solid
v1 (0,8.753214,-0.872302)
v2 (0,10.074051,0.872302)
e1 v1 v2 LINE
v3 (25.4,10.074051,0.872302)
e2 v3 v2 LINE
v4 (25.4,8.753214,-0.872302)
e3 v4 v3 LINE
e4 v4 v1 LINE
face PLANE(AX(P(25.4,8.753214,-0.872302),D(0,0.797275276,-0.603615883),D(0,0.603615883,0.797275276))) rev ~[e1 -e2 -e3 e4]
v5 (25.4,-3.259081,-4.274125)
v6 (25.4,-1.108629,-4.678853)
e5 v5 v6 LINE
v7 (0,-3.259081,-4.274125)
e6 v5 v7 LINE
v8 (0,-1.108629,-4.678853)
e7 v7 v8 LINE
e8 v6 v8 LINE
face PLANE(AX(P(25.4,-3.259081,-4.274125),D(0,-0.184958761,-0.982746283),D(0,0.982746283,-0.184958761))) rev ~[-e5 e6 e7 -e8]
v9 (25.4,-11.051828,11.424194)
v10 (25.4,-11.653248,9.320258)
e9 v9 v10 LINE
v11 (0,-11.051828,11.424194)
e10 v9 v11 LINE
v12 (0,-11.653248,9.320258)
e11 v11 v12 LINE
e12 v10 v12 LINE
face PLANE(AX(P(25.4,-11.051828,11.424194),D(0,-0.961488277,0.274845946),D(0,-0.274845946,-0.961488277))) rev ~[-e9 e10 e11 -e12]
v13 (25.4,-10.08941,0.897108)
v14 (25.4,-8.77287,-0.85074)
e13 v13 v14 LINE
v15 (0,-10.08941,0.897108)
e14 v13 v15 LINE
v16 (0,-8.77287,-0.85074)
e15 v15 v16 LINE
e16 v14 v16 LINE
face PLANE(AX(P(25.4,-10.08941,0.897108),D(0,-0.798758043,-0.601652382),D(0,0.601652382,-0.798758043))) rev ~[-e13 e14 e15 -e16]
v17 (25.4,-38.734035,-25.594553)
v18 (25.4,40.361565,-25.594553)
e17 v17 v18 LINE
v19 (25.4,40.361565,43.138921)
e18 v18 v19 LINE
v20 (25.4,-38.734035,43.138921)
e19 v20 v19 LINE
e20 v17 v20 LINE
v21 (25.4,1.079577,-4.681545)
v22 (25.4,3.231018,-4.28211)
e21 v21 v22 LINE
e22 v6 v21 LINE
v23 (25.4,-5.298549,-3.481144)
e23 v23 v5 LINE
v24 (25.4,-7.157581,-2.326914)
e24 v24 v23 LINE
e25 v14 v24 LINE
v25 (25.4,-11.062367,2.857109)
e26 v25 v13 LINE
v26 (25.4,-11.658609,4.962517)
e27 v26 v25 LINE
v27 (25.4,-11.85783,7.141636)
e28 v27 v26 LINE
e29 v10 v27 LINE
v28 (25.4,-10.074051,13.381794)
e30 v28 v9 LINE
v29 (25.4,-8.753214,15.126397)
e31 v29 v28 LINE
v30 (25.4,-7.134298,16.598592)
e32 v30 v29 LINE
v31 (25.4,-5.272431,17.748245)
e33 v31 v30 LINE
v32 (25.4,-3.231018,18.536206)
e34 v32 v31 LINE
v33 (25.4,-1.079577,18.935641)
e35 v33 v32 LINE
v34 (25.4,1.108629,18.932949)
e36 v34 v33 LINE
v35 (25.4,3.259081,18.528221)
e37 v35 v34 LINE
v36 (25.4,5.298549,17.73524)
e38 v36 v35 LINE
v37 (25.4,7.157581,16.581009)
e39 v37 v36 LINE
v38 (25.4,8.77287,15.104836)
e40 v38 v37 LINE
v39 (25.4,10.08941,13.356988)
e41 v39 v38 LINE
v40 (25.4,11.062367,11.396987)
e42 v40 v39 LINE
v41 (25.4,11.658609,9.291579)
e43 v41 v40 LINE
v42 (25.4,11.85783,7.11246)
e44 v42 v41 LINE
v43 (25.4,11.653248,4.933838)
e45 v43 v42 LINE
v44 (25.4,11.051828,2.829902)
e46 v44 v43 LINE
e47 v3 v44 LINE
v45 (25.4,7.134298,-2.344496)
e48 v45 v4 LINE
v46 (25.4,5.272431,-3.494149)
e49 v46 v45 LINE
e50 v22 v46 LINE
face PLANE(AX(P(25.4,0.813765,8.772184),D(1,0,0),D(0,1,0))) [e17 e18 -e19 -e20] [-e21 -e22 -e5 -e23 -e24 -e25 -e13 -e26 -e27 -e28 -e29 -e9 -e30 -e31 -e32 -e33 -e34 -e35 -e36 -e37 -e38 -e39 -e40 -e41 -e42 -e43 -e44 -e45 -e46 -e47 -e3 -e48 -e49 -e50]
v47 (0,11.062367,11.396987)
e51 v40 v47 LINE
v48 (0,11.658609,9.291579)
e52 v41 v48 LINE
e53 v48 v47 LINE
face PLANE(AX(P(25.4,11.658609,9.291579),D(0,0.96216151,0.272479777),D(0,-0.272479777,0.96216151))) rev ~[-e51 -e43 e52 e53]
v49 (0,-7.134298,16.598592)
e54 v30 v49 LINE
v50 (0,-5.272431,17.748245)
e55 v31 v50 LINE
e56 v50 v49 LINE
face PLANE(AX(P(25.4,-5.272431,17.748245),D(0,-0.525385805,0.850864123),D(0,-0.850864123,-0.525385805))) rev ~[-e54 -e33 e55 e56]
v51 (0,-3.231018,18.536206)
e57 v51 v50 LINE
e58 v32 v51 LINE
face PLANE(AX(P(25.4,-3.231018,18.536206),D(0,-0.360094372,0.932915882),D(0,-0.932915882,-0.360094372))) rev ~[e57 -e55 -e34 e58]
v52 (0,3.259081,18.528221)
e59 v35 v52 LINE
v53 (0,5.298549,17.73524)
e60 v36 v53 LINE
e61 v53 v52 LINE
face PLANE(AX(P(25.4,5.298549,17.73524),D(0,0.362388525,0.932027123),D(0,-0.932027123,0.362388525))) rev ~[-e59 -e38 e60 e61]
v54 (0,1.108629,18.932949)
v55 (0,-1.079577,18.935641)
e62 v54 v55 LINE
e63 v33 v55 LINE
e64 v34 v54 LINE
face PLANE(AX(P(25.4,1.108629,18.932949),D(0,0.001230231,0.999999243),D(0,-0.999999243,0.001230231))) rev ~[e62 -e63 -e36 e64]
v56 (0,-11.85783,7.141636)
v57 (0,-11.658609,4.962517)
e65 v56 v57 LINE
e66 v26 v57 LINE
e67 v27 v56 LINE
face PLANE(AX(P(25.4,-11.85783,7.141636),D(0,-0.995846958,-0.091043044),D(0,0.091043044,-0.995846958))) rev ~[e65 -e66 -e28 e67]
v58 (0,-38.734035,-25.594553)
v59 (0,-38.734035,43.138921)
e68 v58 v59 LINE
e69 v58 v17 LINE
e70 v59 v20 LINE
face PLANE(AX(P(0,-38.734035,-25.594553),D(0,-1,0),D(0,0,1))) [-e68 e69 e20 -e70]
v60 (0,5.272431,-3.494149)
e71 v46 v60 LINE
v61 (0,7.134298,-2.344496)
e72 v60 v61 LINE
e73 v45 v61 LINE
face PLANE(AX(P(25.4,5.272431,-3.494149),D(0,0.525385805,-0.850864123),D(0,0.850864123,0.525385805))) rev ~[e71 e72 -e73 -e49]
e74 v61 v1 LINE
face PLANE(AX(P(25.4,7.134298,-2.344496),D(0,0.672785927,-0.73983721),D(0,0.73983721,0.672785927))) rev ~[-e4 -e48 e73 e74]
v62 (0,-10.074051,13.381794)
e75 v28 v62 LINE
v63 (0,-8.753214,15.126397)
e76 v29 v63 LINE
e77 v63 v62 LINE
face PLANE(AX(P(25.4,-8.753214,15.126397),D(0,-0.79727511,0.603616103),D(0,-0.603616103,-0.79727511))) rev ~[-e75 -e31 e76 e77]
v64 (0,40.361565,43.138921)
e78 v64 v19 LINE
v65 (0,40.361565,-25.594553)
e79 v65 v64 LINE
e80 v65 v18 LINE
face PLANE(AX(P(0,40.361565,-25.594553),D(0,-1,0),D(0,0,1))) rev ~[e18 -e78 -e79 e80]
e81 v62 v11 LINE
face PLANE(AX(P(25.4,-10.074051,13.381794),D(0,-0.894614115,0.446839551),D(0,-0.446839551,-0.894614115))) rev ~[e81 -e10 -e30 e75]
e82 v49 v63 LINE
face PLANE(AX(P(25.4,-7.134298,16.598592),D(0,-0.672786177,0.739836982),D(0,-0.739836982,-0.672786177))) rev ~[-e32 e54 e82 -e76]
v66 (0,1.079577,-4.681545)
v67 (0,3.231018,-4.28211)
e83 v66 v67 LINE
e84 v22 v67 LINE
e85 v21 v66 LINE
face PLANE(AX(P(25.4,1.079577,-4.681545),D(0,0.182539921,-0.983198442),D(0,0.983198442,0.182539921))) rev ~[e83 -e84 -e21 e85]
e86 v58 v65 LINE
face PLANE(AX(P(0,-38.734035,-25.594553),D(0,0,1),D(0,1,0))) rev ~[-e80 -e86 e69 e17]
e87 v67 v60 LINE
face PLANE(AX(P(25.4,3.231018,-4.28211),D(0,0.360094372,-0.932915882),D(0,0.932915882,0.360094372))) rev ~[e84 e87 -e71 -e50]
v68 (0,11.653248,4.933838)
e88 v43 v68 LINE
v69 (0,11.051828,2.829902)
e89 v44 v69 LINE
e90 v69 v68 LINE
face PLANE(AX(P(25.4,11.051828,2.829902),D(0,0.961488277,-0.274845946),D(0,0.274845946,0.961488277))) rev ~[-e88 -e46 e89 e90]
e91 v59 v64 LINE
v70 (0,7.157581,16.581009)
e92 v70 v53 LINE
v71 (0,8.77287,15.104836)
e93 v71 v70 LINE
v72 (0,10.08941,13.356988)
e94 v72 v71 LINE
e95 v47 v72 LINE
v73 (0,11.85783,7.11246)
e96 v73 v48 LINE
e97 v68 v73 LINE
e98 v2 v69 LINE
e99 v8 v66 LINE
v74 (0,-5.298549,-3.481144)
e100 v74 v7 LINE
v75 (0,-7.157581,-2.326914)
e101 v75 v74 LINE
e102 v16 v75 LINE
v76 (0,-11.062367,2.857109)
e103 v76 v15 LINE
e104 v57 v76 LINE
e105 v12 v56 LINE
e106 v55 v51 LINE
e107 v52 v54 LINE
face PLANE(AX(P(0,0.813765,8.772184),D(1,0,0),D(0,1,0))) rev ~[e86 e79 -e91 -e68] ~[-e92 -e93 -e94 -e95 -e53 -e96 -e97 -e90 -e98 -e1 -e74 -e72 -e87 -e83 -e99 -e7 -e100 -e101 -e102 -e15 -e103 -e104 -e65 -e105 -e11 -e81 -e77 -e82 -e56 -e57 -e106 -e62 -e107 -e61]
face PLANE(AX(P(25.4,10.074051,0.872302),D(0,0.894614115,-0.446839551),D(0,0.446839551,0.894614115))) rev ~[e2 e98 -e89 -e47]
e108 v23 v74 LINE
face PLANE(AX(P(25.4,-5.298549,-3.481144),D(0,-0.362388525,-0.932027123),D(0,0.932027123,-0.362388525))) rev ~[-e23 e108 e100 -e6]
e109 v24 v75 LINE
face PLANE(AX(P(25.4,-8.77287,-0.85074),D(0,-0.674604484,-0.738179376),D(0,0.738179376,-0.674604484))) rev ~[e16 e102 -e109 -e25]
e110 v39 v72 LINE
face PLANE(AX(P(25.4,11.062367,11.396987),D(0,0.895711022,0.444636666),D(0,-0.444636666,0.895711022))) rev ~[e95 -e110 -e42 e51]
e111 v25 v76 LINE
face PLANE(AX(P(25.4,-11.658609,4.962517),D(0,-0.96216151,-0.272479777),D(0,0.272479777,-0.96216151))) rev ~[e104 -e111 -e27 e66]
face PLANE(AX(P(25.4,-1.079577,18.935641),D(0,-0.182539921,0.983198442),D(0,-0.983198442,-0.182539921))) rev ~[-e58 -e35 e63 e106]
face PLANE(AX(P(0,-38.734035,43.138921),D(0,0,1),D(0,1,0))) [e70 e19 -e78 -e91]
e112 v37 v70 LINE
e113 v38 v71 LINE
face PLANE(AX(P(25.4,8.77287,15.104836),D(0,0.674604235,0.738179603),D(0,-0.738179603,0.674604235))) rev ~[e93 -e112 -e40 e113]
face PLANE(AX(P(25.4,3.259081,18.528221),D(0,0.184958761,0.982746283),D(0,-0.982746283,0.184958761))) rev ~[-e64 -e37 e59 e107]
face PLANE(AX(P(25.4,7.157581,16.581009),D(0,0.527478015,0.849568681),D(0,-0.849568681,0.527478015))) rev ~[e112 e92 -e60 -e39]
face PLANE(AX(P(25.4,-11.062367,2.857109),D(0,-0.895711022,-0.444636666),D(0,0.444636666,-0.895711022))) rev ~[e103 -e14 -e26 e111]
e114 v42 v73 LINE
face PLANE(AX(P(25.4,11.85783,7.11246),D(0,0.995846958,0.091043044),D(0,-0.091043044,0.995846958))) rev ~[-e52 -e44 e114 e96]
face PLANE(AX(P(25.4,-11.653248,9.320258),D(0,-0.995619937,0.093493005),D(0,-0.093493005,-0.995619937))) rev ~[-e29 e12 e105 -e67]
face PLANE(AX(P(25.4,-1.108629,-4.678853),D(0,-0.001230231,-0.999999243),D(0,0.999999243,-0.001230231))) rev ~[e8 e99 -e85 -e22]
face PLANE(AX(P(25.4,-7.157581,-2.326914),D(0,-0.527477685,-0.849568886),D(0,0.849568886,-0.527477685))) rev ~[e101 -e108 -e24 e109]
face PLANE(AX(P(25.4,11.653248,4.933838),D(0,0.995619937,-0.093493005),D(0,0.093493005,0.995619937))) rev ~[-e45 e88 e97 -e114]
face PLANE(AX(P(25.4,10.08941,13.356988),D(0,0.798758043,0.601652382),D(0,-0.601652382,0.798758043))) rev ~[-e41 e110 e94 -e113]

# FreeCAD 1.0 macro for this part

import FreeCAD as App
import Part
import Sketcher
Q = App.Units.Quantity


def add_polygon(sketch, points):
    """Adds a closed chain of lines whose ends are joined by coincident constraints."""
    first, n = sketch.GeometryCount, len(points)
    for a, b in zip(points, points[1:] + points[:1]):
        sketch.addGeometry(Part.LineSegment(App.Vector(*a, 0), App.Vector(*b, 0)), False)
    for i in range(n):
        sketch.addConstraint(Sketcher.Constraint("Coincident", first + i, 2, first + (i + 1) % n, 1))

doc = App.newDocument("Part")
body = doc.addObject("PartDesign::Body", "Body")

sketch1 = body.newObject("Sketcher::SketchObject", "Sketch")
sketch1.AttachmentSupport = (doc.getObject("YZ_Plane"), [""])
sketch1.MapMode = "FlatFace"
add_polygon(sketch1, [(-38.734035, 43.138921), (-38.734035, -25.594553), (40.361565, -25.594553), (40.361565, 43.138921)])
sketch1.addConstraint([
    Sketcher.Constraint("Vertical", 0),
    Sketcher.Constraint("Horizontal", 1),
    Sketcher.Constraint("Vertical", 2),
    Sketcher.Constraint("Horizontal", 3),
    Sketcher.Constraint("DistanceX", 1, 1, 1, 2, Q("3.114 in")),
    Sketcher.Constraint("DistanceY", 0, 2, 0, 1, 68.733474),
    Sketcher.Constraint("DistanceY", -1, 1, 2, 2, 43.138921),
    Sketcher.Constraint("DistanceX", 0, 2, -1, 1, 38.734035),
])
pad1 = body.newObject("PartDesign::Pad", "Pad")
pad1.Profile = sketch1
pad1.Length = Q("1 in")

sketch2 = body.newObject("Sketcher::SketchObject", "Sketch001")
sketch2.AttachmentSupport = (doc.getObject("YZ_Plane"), [""])
sketch2.MapMode = "FlatFace"
sketch2.AttachmentOffset = App.Placement(App.Vector(0, 0, 1 * 25.4), App.Rotation())
add_polygon(sketch2, [(8.753214, -0.872302), (10.074051, 0.872302), (11.051828, 2.829902), (11.653248, 4.933838), (11.85783, 7.11246), (11.658609, 9.291579), (11.062367, 11.396987), (10.08941, 13.356988), (8.77287, 15.104836), (7.157581, 16.581009), (5.298549, 17.73524), (3.259081, 18.528221), (1.108629, 18.932949), (-1.079577, 18.935641), (-3.231018, 18.536206), (-5.272431, 17.748245), (-7.134298, 16.598592), (-8.753214, 15.126397), (-10.074051, 13.381794), (-11.051828, 11.424194), (-11.653248, 9.320258), (-11.85783, 7.141636), (-11.658609, 4.962517), (-11.062367, 2.857109), (-10.08941, 0.897108), (-8.77287, -0.85074), (-7.157581, -2.326914), (-5.298549, -3.481144), (-3.259081, -4.274125), (-1.108629, -4.678853), (1.079577, -4.681545), (3.231018, -4.28211), (5.272431, -3.494149), (7.134298, -2.344496)])
sketch2.addConstraint([
    Sketcher.Constraint("DistanceX", 13, 2, 8, 2, Q("0.409 in")),
    Sketcher.Constraint("DistanceX", 15, 2, -1, 1, 7.134298),
    Sketcher.Constraint("DistanceX", -1, 1, 32, 2, 7.134298),
    Sketcher.Constraint("DistanceY", 0, 2, 1, 2, 1.9576),
    Sketcher.Constraint("DistanceX", 1, 2, 3, 2, 0.806002),
    Sketcher.Constraint("DistanceY", 5, 2, 6, 2, 1.960001),
    Sketcher.Constraint("DistanceX", 6, 2, 4, 2, 1.569199),
    Sketcher.Constraint("DistanceY", 2, 2, 7, 2, 10.170998),
    Sketcher.Constraint("DistanceX", 10, 2, 8, 2, 3.8985),
    Sketcher.Constraint("DistanceY", 9, 2, 12, 2, 1.200401),
    Sketcher.Constraint("DistanceY", 17, 2, 15, 2, 3.216798),
    Sketcher.Constraint("DistanceY", 18, 2, 17, 2, 1.9576),
    Sketcher.Constraint("DistanceX", 20, 2, 18, 2, 0.806002),
    Sketcher.Constraint("DistanceY", 23, 2, 22, 2, 1.960001),
    Sketcher.Constraint("DistanceX", 21, 2, 23, 2, 1.569199),
    Sketcher.Constraint("DistanceY", 24, 2, 19, 2, 10.170998),
    Sketcher.Constraint("DistanceX", 25, 2, 27, 2, 3.8985),
    Sketcher.Constraint("DistanceY", 29, 2, 26, 2, 1.200401),
    Sketcher.Constraint("DistanceX", 27, 2, 30, 2, 6.490099),
    Sketcher.Constraint("DistanceX", -1, 1, 0, 2, 10.074051),
    Sketcher.Constraint("DistanceX", -1, 1, 3, 2, 11.85783),
    Sketcher.Constraint("DistanceY", -1, 1, 3, 2, 7.11246),
    Sketcher.Constraint("DistanceX", -1, 1, 4, 2, 11.658609),
    Sketcher.Constraint("DistanceY", -1, 1, 4, 2, 9.291579),
    Sketcher.Constraint("DistanceX", -1, 1, 7, 2, 8.77287),
    Sketcher.Constraint("DistanceX", -1, 1, 8, 2, 7.157581),
    Sketcher.Constraint("DistanceY", -1, 1, 8, 2, 16.581009),
    Sketcher.Constraint("DistanceX", -1, 1, 9, 2, 5.298549),
    Sketcher.Constraint("DistanceY", -1, 1, 9, 2, 17.73524),
    Sketcher.Constraint("DistanceY", -1, 1, 10, 2, 18.528221),
    Sketcher.Constraint("DistanceX", -1, 1, 11, 2, 1.108629),
    Sketcher.Constraint("DistanceY", -1, 1, 11, 2, 18.932949),
    Sketcher.Constraint("DistanceX", 14, 2, -1, 1, 5.272431),
    Sketcher.Constraint("DistanceY", -1, 1, 15, 2, 16.598592),
    Sketcher.Constraint("DistanceX", 17, 2, -1, 1, 10.074051),
    Sketcher.Constraint("DistanceY", -1, 1, 19, 2, 9.320258),
    Sketcher.Constraint("DistanceX", 20, 2, -1, 1, 11.85783),
    Sketcher.Constraint("DistanceX", 21, 2, -1, 1, 11.658609),
    Sketcher.Constraint("DistanceY", -1, 1, 22, 2, 2.857109),
    Sketcher.Constraint("DistanceX", 24, 2, -1, 1, 8.77287),
    Sketcher.Constraint("DistanceX", 25, 2, -1, 1, 7.157581),
    Sketcher.Constraint("DistanceX", 26, 2, -1, 1, 5.298549),
    Sketcher.Constraint("DistanceX", 28, 2, -1, 1, 1.108629),
    Sketcher.Constraint("DistanceY", 30, 2, -1, 1, 4.28211),
    Sketcher.Constraint("DistanceX", -1, 1, 31, 2, 5.272431),
    Sketcher.Constraint("DistanceY", 31, 2, -1, 1, 3.494149),
    Sketcher.Constraint("DistanceX", 1, 2, 2, 2, 0.60142),
    Sketcher.Constraint("DistanceY", 2, 2, 3, 2, 2.178622),
    Sketcher.Constraint("DistanceX", 5, 2, 2, 2, 0.590881),
    Sketcher.Constraint("DistanceY", 2, 2, 5, 2, 6.463149),
    Sketcher.Constraint("DistanceX", 12, 2, 10, 2, 4.338658),
    Sketcher.Constraint("DistanceY", 14, 2, 13, 2, 0.787961),
    Sketcher.Constraint("DistanceY", 16, 2, 14, 2, 2.621848),
    Sketcher.Constraint("DistanceY", 16, 2, 11, 2, 3.806552),
    Sketcher.Constraint("DistanceX", 19, 2, 18, 2, 0.60142),
    Sketcher.Constraint("DistanceY", 20, 2, 16, 2, 7.984761),
    Sketcher.Constraint("DistanceY", 21, 2, 20, 2, 2.179119),
    Sketcher.Constraint("DistanceX", 19, 2, 22, 2, 0.590881),
    Sketcher.Constraint("DistanceY", 25, 2, 23, 2, 3.224022),
    Sketcher.Constraint("DistanceY", 26, 2, 25, 2, 1.15423),
    Sketcher.Constraint("DistanceY", 27, 2, 26, 2, 0.792981),
    Sketcher.Constraint("DistanceY", 28, 2, 27, 2, 0.404728),
    Sketcher.Constraint("DistanceX", 27, 2, 29, 2, 4.338658),
    Sketcher.Constraint("DistanceY", 31, 2, 0, 2, 4.366451),
    Sketcher.Constraint("DistanceY", 29, 2, 32, 2, 2.337049),
    Sketcher.Constraint("DistanceY", 30, 2, 33, 2, 3.409808),
    Sketcher.Constraint("Distance", 0, 2.188208),
    Sketcher.Constraint("Distance", 16, 2.188206),
])
pocket1 = body.newObject("PartDesign::Pocket", "Pocket")
pocket1.Profile = sketch2
pocket1.Length = Q("1 in")

doc.recompute()
